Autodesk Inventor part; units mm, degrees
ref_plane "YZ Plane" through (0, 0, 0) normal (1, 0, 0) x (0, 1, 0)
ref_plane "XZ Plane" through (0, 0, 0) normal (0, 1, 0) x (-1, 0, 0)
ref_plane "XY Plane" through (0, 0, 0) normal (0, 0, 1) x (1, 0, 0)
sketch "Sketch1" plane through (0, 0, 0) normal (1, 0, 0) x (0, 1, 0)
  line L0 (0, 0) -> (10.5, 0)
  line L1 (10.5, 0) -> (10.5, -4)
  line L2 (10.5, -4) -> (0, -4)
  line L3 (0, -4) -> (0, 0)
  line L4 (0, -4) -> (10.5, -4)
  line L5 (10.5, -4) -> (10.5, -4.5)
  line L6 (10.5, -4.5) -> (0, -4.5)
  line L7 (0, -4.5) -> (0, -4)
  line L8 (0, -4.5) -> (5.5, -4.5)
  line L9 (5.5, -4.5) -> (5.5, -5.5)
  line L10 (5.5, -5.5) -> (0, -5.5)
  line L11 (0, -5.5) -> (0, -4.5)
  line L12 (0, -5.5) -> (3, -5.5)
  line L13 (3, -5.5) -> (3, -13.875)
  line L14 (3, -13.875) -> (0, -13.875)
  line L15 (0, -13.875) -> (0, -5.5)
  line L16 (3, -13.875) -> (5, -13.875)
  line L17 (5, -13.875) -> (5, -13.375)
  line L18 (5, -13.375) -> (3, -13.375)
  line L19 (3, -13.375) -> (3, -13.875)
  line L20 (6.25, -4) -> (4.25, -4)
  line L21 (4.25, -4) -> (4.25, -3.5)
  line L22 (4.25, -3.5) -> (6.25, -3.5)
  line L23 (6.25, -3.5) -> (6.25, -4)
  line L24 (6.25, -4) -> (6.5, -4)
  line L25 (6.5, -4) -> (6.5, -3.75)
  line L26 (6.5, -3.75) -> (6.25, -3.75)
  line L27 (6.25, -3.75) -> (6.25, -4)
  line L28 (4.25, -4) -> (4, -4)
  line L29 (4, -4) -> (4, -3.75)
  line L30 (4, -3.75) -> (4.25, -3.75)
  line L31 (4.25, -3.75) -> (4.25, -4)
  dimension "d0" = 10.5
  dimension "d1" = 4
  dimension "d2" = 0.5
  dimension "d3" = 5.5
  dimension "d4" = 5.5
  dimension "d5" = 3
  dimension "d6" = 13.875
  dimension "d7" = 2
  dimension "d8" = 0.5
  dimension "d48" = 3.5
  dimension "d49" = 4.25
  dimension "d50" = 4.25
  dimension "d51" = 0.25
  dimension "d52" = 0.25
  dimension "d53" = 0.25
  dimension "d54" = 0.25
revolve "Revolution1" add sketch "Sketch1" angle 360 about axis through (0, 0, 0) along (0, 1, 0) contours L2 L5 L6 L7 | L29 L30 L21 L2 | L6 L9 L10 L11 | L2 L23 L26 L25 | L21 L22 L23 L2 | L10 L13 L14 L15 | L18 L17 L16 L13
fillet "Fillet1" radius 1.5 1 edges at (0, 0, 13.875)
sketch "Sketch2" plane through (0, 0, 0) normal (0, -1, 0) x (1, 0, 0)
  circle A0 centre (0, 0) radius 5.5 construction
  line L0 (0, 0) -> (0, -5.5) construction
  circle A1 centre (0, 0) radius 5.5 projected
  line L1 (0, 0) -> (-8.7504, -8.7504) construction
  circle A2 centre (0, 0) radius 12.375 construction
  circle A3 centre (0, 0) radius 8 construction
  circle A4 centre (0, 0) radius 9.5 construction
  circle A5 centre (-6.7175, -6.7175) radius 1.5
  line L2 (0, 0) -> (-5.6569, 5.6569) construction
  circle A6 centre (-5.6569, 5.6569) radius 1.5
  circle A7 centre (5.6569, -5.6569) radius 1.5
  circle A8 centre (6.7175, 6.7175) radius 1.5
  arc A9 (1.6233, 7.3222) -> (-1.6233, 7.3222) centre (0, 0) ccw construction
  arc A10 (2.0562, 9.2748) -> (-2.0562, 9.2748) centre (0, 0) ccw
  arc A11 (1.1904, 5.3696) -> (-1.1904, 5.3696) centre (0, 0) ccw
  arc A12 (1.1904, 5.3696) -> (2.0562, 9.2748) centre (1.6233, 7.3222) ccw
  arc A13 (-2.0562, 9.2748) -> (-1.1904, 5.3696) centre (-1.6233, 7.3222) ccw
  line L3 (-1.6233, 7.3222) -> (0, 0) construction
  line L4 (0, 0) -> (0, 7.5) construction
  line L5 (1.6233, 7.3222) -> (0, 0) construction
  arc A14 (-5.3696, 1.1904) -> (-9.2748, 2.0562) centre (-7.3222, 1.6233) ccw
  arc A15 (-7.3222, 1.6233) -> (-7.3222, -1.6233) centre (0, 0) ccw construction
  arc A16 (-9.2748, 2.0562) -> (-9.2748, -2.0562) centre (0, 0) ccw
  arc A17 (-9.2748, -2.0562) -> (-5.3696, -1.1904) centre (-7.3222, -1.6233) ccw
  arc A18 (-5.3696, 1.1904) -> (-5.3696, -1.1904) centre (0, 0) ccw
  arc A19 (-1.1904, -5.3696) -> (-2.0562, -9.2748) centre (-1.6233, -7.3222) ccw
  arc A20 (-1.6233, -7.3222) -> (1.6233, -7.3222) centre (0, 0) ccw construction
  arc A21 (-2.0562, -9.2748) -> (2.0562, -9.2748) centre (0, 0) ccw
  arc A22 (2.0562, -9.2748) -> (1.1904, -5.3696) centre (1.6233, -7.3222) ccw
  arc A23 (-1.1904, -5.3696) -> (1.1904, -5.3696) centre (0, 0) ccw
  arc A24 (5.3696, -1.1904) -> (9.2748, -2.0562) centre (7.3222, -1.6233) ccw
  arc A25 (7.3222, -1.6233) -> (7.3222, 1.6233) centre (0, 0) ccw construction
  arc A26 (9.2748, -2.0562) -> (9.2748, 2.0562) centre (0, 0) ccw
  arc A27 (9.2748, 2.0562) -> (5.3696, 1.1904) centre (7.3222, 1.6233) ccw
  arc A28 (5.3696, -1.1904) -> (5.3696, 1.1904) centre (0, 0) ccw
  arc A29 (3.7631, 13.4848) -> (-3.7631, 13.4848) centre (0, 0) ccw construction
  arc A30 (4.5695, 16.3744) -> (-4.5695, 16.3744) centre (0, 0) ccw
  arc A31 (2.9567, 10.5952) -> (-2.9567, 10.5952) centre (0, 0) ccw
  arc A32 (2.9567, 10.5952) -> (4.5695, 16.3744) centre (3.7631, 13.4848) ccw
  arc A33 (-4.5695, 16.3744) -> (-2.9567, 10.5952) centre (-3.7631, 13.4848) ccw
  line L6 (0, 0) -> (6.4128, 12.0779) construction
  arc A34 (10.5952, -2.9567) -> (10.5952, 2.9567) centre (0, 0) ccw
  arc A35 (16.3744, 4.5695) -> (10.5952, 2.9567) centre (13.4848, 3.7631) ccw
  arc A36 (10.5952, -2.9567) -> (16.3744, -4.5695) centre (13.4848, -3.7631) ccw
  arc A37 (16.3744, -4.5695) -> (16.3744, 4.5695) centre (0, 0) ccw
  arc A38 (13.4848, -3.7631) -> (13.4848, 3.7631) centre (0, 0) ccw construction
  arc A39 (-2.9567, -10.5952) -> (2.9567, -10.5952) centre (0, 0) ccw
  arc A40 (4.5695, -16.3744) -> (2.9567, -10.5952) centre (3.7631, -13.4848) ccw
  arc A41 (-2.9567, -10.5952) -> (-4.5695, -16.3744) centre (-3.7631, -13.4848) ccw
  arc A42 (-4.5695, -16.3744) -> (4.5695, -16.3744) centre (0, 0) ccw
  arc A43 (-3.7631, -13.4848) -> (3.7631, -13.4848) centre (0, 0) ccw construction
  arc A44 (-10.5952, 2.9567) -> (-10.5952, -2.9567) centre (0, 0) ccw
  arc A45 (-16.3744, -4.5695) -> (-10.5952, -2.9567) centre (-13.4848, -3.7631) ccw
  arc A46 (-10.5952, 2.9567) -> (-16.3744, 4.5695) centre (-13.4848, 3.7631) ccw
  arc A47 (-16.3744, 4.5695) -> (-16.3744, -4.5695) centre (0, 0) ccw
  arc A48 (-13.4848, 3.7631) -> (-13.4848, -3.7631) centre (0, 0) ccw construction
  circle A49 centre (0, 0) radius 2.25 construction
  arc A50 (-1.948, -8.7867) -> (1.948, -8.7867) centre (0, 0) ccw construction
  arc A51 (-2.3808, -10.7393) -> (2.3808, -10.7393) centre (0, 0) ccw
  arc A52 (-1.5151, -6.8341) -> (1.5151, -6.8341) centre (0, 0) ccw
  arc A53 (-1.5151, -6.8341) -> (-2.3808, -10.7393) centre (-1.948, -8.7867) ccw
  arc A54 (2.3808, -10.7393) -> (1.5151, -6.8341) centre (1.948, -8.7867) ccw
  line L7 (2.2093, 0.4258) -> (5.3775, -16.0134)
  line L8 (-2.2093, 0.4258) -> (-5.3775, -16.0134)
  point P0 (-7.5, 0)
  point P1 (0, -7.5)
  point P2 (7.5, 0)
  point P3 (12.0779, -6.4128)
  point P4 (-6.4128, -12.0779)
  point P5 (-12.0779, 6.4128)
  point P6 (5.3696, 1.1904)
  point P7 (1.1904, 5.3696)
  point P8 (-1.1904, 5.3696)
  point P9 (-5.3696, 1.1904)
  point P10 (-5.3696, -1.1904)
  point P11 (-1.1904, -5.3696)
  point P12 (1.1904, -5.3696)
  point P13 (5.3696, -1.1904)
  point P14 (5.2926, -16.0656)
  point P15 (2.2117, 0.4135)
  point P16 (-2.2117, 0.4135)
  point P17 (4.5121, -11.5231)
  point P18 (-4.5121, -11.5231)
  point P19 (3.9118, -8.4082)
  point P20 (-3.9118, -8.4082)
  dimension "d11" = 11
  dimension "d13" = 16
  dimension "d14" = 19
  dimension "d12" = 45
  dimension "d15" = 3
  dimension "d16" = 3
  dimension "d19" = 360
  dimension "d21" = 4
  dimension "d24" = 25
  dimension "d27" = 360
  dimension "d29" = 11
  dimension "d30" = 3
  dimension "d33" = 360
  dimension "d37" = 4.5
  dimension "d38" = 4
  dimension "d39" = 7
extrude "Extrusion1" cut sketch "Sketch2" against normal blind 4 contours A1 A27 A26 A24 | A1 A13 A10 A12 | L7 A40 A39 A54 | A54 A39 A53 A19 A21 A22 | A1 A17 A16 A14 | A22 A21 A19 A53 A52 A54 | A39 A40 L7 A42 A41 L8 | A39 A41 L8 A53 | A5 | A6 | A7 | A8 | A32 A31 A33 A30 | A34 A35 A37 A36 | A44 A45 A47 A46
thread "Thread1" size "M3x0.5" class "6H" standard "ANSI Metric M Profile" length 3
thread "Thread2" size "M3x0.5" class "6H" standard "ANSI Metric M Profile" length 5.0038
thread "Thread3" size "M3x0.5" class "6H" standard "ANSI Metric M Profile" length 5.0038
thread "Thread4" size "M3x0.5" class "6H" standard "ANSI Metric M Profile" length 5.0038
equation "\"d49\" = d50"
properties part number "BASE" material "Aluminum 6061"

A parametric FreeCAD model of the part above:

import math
import FreeCAD as App
import Part
import Sketcher


def edges_at(feature, points):
    """Names of the edges that pass closest to the given points."""
    edges = feature.Shape.Edges
    near = lambda p: min(range(len(edges)), key=lambda i: edges[i].distToShape(Part.Vertex(*p))[0])
    return sorted({f"Edge{near(p) + 1}" for p in points})


def add_polygon(sketch, points):
    """Adds a closed chain of lines whose ends are joined by coincident constraints."""
    first, n = sketch.GeometryCount, len(points)
    for a, b in zip(points, points[1:] + points[:1]):
        sketch.addGeometry(Part.LineSegment(App.Vector(*a, 0), App.Vector(*b, 0)), False)
    for i in range(n):
        sketch.addConstraint(Sketcher.Constraint("Coincident", first + i, 2, first + (i + 1) % n, 1))

doc = App.newDocument("Part")
body = doc.addObject("PartDesign::Body", "Body")

sketch1 = body.newObject("Sketcher::SketchObject", "Sketch")
sketch1.AttachmentSupport = (doc.getObject("YZ_Plane"), [""])
sketch1.MapMode = "FlatFace"
add_polygon(sketch1, [(4, -4), (0, -4), (0, -13.875), (5, -13.875), (5, -13.375), (3, -13.375), (3, -5.5), (5.5, -5.5), (5.5, -4.5), (10.5, -4.5), (10.5, -4), (6.5, -4), (6.5, -3.75), (6.25, -3.75), (6.25, -3.5), (4.25, -3.5), (4.25, -3.75), (4, -3.75)])
sketch1.addConstraint(Sketcher.Constraint("Horizontal", 0))
sketch1.addConstraint(Sketcher.Constraint("Vertical", 1))
sketch1.addConstraint(Sketcher.Constraint("Horizontal", 2))
sketch1.addConstraint(Sketcher.Constraint("Vertical", 3))
sketch1.addConstraint(Sketcher.Constraint("Horizontal", 4))
sketch1.addConstraint(Sketcher.Constraint("Vertical", 5))
sketch1.addConstraint(Sketcher.Constraint("Horizontal", 6))
sketch1.addConstraint(Sketcher.Constraint("Vertical", 7))
sketch1.addConstraint(Sketcher.Constraint("Horizontal", 8))
sketch1.addConstraint(Sketcher.Constraint("Vertical", 9))
sketch1.addConstraint(Sketcher.Constraint("Horizontal", 10))
sketch1.addConstraint(Sketcher.Constraint("Vertical", 11))
sketch1.addConstraint(Sketcher.Constraint("Horizontal", 12))
sketch1.addConstraint(Sketcher.Constraint("Vertical", 13))
sketch1.addConstraint(Sketcher.Constraint("Horizontal", 14))
sketch1.addConstraint(Sketcher.Constraint("Vertical", 15))
sketch1.addConstraint(Sketcher.Constraint("Horizontal", 16))
sketch1.addConstraint(Sketcher.Constraint("Vertical", 17))
sketch1.addConstraint(Sketcher.Constraint("PointOnObject", 0, 2, -2))
sketch1.addConstraint(Sketcher.Constraint("Horizontal", 0, 2, 9, 2))
sketch1.addConstraint(Sketcher.Constraint("Horizontal", 12, 2, 15, 2))
sketch1.addConstraint(Sketcher.Constraint("Equal", 2, 8))
sketch1.addConstraint(Sketcher.Constraint("Equal", 0, 10))
sketch1.addConstraint(Sketcher.Constraint("Equal", 4, 14))
sketch1.addConstraint(Sketcher.Constraint("Equal", 12, 16))
sketch1.addConstraint(Sketcher.Constraint("Equal", 3, 9))
sketch1.addConstraint(Sketcher.Constraint("Equal", 16, 11))
sketch1.addConstraint(Sketcher.Constraint("Equal", 11, 13))
sketch1.addConstraint(Sketcher.Constraint("DistanceX", 0, 2, 0, 1, 4.0))
sketch1.addConstraint(Sketcher.Constraint("DistanceX", 4, 2, 4, 1, 2.0))
sketch1.addConstraint(Sketcher.Constraint("DistanceY", 3, 1, 3, 2, 0.5))
sketch1.addConstraint(Sketcher.Constraint("DistanceY", 0, 2, -1, 1, 4.0))
sketch1.addConstraint(Sketcher.Constraint("DistanceX", -1, 1, 4, 2, 3.0))
sketch1.addConstraint(Sketcher.Constraint("DistanceY", 6, 2, 13, 2, 2.0))
sketch1.addConstraint(Sketcher.Constraint("DistanceX", 12, 2, 12, 1, 0.25))
sketch1.addConstraint(Sketcher.Constraint("DistanceY", 1, 2, -1, 1, 13.875))
revolution = body.newObject("PartDesign::Revolution", "Revolution")
revolution.Profile = sketch1
revolution.ReferenceAxis = (sketch1, ["H_Axis"])
revolution.Angle = 360
doc.recompute()

fillet = body.newObject("PartDesign::Fillet", "Fillet")
fillet.Base = (revolution, edges_at(revolution, [(0, 0, 13.875)]))
fillet.Radius = 1.5

sketch2 = body.newObject("Sketcher::SketchObject", "Sketch001")
sketch2.AttachmentSupport = (doc.getObject("XZ_Plane"), [""])
sketch2.MapMode = "FlatFace"
sketch2.addGeometry(Part.ArcOfCircle(Part.Circle(App.Vector(0, 0, 0), App.Vector(0, 0, 1), 5.5), math.radians(-12.499881), math.radians(12.499881)), False)
sketch2.addGeometry(Part.ArcOfCircle(Part.Circle(App.Vector(7.3222, -1.6233, 0), App.Vector(0, 0, 1), 2.000012), math.radians(167.499469), math.radians(347.499469)), False)
sketch2.addGeometry(Part.ArcOfCircle(Part.Circle(App.Vector(0, 0, 0), App.Vector(0, 0, 1), 9.499993), math.radians(-12.500155), math.radians(12.500155)), False)
sketch2.addGeometry(Part.ArcOfCircle(Part.Circle(App.Vector(7.3222, 1.6233, 0), App.Vector(0, 0, 1), 2.000012), math.radians(12.500531), math.radians(192.500531)), False)
sketch2.addGeometry(Part.ArcOfCircle(Part.Circle(App.Vector(0, 0, 0), App.Vector(0, 0, 1), 5.5), math.radians(77.500119), math.radians(102.499881)), False)
sketch2.addGeometry(Part.ArcOfCircle(Part.Circle(App.Vector(1.6233, 7.3222, 0), App.Vector(0, 0, 1), 2.000012), math.radians(-102.500531), math.radians(77.499469)), False)
sketch2.addGeometry(Part.ArcOfCircle(Part.Circle(App.Vector(0, 0, 0), App.Vector(0, 0, 1), 9.499993), math.radians(77.499845), math.radians(102.500155)), False)
sketch2.addGeometry(Part.ArcOfCircle(Part.Circle(App.Vector(-1.6233, 7.3222, 0), App.Vector(0, 0, 1), 2.000012), math.radians(102.500531), math.radians(282.500531)), False)
sketch2.addGeometry(Part.ArcOfCircle(Part.Circle(App.Vector(1.948, -8.7867, 0), App.Vector(0, 0, 1), 1.999991), math.radians(10.908733), math.radians(102.500531)), False)
sketch2.addGeometry(Part.ArcOfCircle(Part.Circle(App.Vector(0, 0, 0), App.Vector(0, 0, 1), 7.000032), math.radians(-102.500132), math.radians(-77.499868)), False)
sketch2.addGeometry(Part.ArcOfCircle(Part.Circle(App.Vector(-1.948, -8.7867, 0), App.Vector(0, 0, 1), 2.000012), math.radians(77.499469), math.radians(169.09125)), False)
sketch2.addGeometry(Part.LineSegment(App.Vector(-3.911842, -8.408213, 0), App.Vector(-5.3775, -16.0134, 0)), False)
sketch2.addGeometry(Part.ArcOfCircle(Part.Circle(App.Vector(-3.7631, -13.4848, 0), App.Vector(0, 0, 1), 3.000012), math.radians(-122.556443), math.radians(-105.592811)), False)
sketch2.addGeometry(Part.ArcOfCircle(Part.Circle(App.Vector(0, 0, 0), App.Vector(0, 0, 1), 17.000038), math.radians(-105.592486), math.radians(-74.407514)), False)
sketch2.addGeometry(Part.ArcOfCircle(Part.Circle(App.Vector(3.7631, -13.4848, 0), App.Vector(0, 0, 1), 3.000012), math.radians(-74.407189), math.radians(-57.443557)), False)
sketch2.addGeometry(Part.LineSegment(App.Vector(5.3775, -16.0134, 0), App.Vector(3.911831, -8.408215, 0)), False)
sketch2.addGeometry(Part.ArcOfCircle(Part.Circle(App.Vector(0, 0, 0), App.Vector(0, 0, 1), 5.5), math.radians(167.500119), math.radians(192.499881)), False)
sketch2.addGeometry(Part.ArcOfCircle(Part.Circle(App.Vector(-7.3222, 1.6233, 0), App.Vector(0, 0, 1), 2.000012), math.radians(-12.500531), math.radians(167.499469)), False)
sketch2.addGeometry(Part.ArcOfCircle(Part.Circle(App.Vector(0, 0, 0), App.Vector(0, 0, 1), 9.499993), math.radians(167.499845), math.radians(192.500155)), False)
sketch2.addGeometry(Part.ArcOfCircle(Part.Circle(App.Vector(-7.3222, -1.6233, 0), App.Vector(0, 0, 1), 2.000012), math.radians(-167.499469), math.radians(12.500531)), False)
sketch2.addGeometry(Part.Circle(App.Vector(-6.7175, -6.7175, 0), App.Vector(0, 0, 1), 1.5), False)
sketch2.addGeometry(Part.Circle(App.Vector(-5.6569, 5.6569, 0), App.Vector(0, 0, 1), 1.5), False)
sketch2.addGeometry(Part.Circle(App.Vector(5.6569, -5.6569, 0), App.Vector(0, 0, 1), 1.5), False)
sketch2.addGeometry(Part.Circle(App.Vector(6.7175, 6.7175, 0), App.Vector(0, 0, 1), 1.5), False)
sketch2.addGeometry(Part.ArcOfCircle(Part.Circle(App.Vector(3.7631, 13.4848, 0), App.Vector(0, 0, 1), 3.000012), math.radians(-105.592811), math.radians(74.407189)), False)
sketch2.addGeometry(Part.ArcOfCircle(Part.Circle(App.Vector(0, 0, 0), App.Vector(0, 0, 1), 17.000038), math.radians(74.407514), math.radians(105.592486)), False)
sketch2.addGeometry(Part.ArcOfCircle(Part.Circle(App.Vector(-3.7631, 13.4848, 0), App.Vector(0, 0, 1), 3.000012), math.radians(105.592811), math.radians(285.592811)), False)
sketch2.addGeometry(Part.ArcOfCircle(Part.Circle(App.Vector(0, 0, 0), App.Vector(0, 0, 1), 11.000015), math.radians(74.407691), math.radians(105.592309)), False)
sketch2.addGeometry(Part.ArcOfCircle(Part.Circle(App.Vector(0, 0, 0), App.Vector(0, 0, 1), 11.000015), math.radians(-15.592309), math.radians(15.592309)), False)
sketch2.addGeometry(Part.ArcOfCircle(Part.Circle(App.Vector(13.4848, -3.7631, 0), App.Vector(0, 0, 1), 3.000012), math.radians(164.407189), math.radians(344.407189)), False)
sketch2.addGeometry(Part.ArcOfCircle(Part.Circle(App.Vector(0, 0, 0), App.Vector(0, 0, 1), 17.000038), math.radians(-15.592486), math.radians(15.592486)), False)
sketch2.addGeometry(Part.ArcOfCircle(Part.Circle(App.Vector(13.4848, 3.7631, 0), App.Vector(0, 0, 1), 3.000012), math.radians(15.592811), math.radians(195.592811)), False)
sketch2.addGeometry(Part.ArcOfCircle(Part.Circle(App.Vector(0, 0, 0), App.Vector(0, 0, 1), 11.000015), math.radians(164.407691), math.radians(195.592309)), False)
sketch2.addGeometry(Part.ArcOfCircle(Part.Circle(App.Vector(-13.4848, 3.7631, 0), App.Vector(0, 0, 1), 3.000012), math.radians(-15.592811), math.radians(164.407189)), False)
sketch2.addGeometry(Part.ArcOfCircle(Part.Circle(App.Vector(0, 0, 0), App.Vector(0, 0, 1), 17.000038), math.radians(164.407514), math.radians(195.592486)), False)
sketch2.addGeometry(Part.ArcOfCircle(Part.Circle(App.Vector(-13.4848, -3.7631, 0), App.Vector(0, 0, 1), 3.000012), math.radians(-164.407189), math.radians(15.592811)), False)
sketch2.addConstraint(Sketcher.Constraint("Tangent", 0, 1, 1, 1))
sketch2.addConstraint(Sketcher.Constraint("Tangent", 1, 2, 2, 1))
sketch2.addConstraint(Sketcher.Constraint("Tangent", 2, 2, 3, 1))
sketch2.addConstraint(Sketcher.Constraint("Tangent", 3, 2, 0, 2))
sketch2.addConstraint(Sketcher.Constraint("Tangent", 4, 1, 5, 1))
sketch2.addConstraint(Sketcher.Constraint("Tangent", 5, 2, 6, 1))
sketch2.addConstraint(Sketcher.Constraint("Tangent", 6, 2, 7, 1))
sketch2.addConstraint(Sketcher.Constraint("Tangent", 7, 2, 4, 2))
sketch2.addConstraint(Sketcher.Constraint("Tangent", 8, 2, 9, 2))
sketch2.addConstraint(Sketcher.Constraint("Tangent", 9, 1, 10, 1))
sketch2.addConstraint(Sketcher.Constraint("Tangent", 10, 2, 11, 1))
sketch2.addConstraint(Sketcher.Constraint("Coincident", 11, 2, 12, 1))
sketch2.addConstraint(Sketcher.Constraint("Tangent", 12, 2, 13, 1))
sketch2.addConstraint(Sketcher.Constraint("Tangent", 13, 2, 14, 1))
sketch2.addConstraint(Sketcher.Constraint("Coincident", 14, 2, 15, 1))
sketch2.addConstraint(Sketcher.Constraint("Tangent", 15, 2, 8, 1))
sketch2.addConstraint(Sketcher.Constraint("Tangent", 16, 1, 17, 1))
sketch2.addConstraint(Sketcher.Constraint("Tangent", 17, 2, 18, 1))
sketch2.addConstraint(Sketcher.Constraint("Tangent", 18, 2, 19, 1))
sketch2.addConstraint(Sketcher.Constraint("Tangent", 19, 2, 16, 2))
sketch2.addConstraint(Sketcher.Constraint("Tangent", 24, 2, 25, 1))
sketch2.addConstraint(Sketcher.Constraint("Tangent", 25, 2, 26, 1))
sketch2.addConstraint(Sketcher.Constraint("Tangent", 26, 2, 27, 2))
sketch2.addConstraint(Sketcher.Constraint("Tangent", 27, 1, 24, 1))
sketch2.addConstraint(Sketcher.Constraint("Tangent", 28, 1, 29, 1))
sketch2.addConstraint(Sketcher.Constraint("Tangent", 29, 2, 30, 1))
sketch2.addConstraint(Sketcher.Constraint("Tangent", 30, 2, 31, 1))
sketch2.addConstraint(Sketcher.Constraint("Tangent", 31, 2, 28, 2))
sketch2.addConstraint(Sketcher.Constraint("Tangent", 32, 1, 33, 1))
sketch2.addConstraint(Sketcher.Constraint("Tangent", 33, 2, 34, 1))
sketch2.addConstraint(Sketcher.Constraint("Tangent", 34, 2, 35, 1))
sketch2.addConstraint(Sketcher.Constraint("Tangent", 35, 2, 32, 2))
sketch2.addConstraint(Sketcher.Constraint("Coincident", 0, 3, -1, 1))
sketch2.addConstraint(Sketcher.Constraint("Coincident", 2, 3, -1, 1))
sketch2.addConstraint(Sketcher.Constraint("Coincident", 4, 3, -1, 1))
sketch2.addConstraint(Sketcher.Constraint("Coincident", 6, 3, -1, 1))
sketch2.addConstraint(Sketcher.Constraint("Coincident", 9, 3, -1, 1))
sketch2.addConstraint(Sketcher.Constraint("Coincident", 13, 3, -1, 1))
sketch2.addConstraint(Sketcher.Constraint("Coincident", 16, 3, -1, 1))
sketch2.addConstraint(Sketcher.Constraint("Coincident", 18, 3, -1, 1))
sketch2.addConstraint(Sketcher.Constraint("Coincident", 25, 3, -1, 1))
sketch2.addConstraint(Sketcher.Constraint("Coincident", 27, 3, -1, 1))
sketch2.addConstraint(Sketcher.Constraint("Coincident", 28, 3, -1, 1))
sketch2.addConstraint(Sketcher.Constraint("Coincident", 30, 3, -1, 1))
sketch2.addConstraint(Sketcher.Constraint("Coincident", 32, 3, -1, 1))
sketch2.addConstraint(Sketcher.Constraint("Coincident", 34, 3, -1, 1))
sketch2.addConstraint(Sketcher.Constraint("Equal", 0, 4))
sketch2.addConstraint(Sketcher.Constraint("Equal", 3, 5))
sketch2.addConstraint(Sketcher.Constraint("Equal", 7, 8))
sketch2.addConstraint(Sketcher.Constraint("Equal", 8, 10))
sketch2.addConstraint(Sketcher.Constraint("Equal", 12, 14))
sketch2.addConstraint(Sketcher.Constraint("Equal", 4, 16))
sketch2.addConstraint(Sketcher.Constraint("Equal", 10, 17))
sketch2.addConstraint(Sketcher.Constraint("Equal", 20, 21))
sketch2.addConstraint(Sketcher.Constraint("Equal", 21, 22))
sketch2.addConstraint(Sketcher.Constraint("Equal", 22, 23))
sketch2.addConstraint(Sketcher.Constraint("Equal", 14, 24))
sketch2.addConstraint(Sketcher.Constraint("Equal", 13, 25))
sketch2.addConstraint(Sketcher.Constraint("Equal", 27, 28))
sketch2.addConstraint(Sketcher.Constraint("Equal", 26, 29))
sketch2.addConstraint(Sketcher.Constraint("Equal", 28, 32))
sketch2.addConstraint(Sketcher.Constraint("Equal", 31, 33))
sketch2.addConstraint(Sketcher.Constraint("Symmetric", 21, 3, 22, 3, -1, 1))
sketch2.addConstraint(Sketcher.Constraint("Symmetric", 20, 3, 23, 3, -1, 1))
sketch2.addConstraint(Sketcher.Constraint("Symmetric", 11, 2, 14, 2, -2))
sketch2.addConstraint(Sketcher.Constraint("Horizontal", 5, 3, 7, 3))
sketch2.addConstraint(Sketcher.Constraint("Horizontal", 8, 3, 10, 3))
sketch2.addConstraint(Sketcher.Constraint("Horizontal", 3, 3, 17, 3))
sketch2.addConstraint(Sketcher.Constraint("Horizontal", 1, 3, 19, 3))
sketch2.addConstraint(Sketcher.Constraint("Horizontal", 24, 3, 26, 3))
sketch2.addConstraint(Sketcher.Constraint("Horizontal", 31, 3, 33, 3))
sketch2.addConstraint(Sketcher.Constraint("Horizontal", 29, 3, 35, 3))
sketch2.addConstraint(Sketcher.Constraint("Vertical", 1, 3, 3, 3))
sketch2.addConstraint(Sketcher.Constraint("Vertical", 14, 3, 24, 3))
sketch2.addConstraint(Sketcher.Constraint("Vertical", 29, 3, 31, 3))
sketch2.addConstraint(Sketcher.Constraint("Diameter", 20, 3.0))
sketch2.addConstraint(Sketcher.Constraint("Radius", 1, 2.0))
sketch2.addConstraint(Sketcher.Constraint("Radius", 9, 7.0))
sketch2.addConstraint(Sketcher.Constraint("Radius", 12, 3.0))
sketch2.addConstraint(Sketcher.Constraint("Radius", 27, 11.0))
sketch2.addConstraint(Sketcher.Constraint("Radius", 0, 5.5))
sketch2.addConstraint(Sketcher.Constraint("DistanceX", -1, 1, 8, 3, 1.948))
sketch2.addConstraint(Sketcher.Constraint("DistanceX", 12, 3, -1, 1, 3.763))
sketch2.addConstraint(Sketcher.Constraint("DistanceX", 21, 3, -1, 1, 5.657))
sketch2.addConstraint(Sketcher.Constraint("DistanceY", -1, 1, 21, 3, 5.657))
sketch2.addConstraint(Sketcher.Constraint("DistanceY", 29, 3, -1, 1, 3.763))
sketch2.addConstraint(Sketcher.Constraint("Distance", 11, 7.7451))
sketch2.addConstraint(Sketcher.Constraint("DistanceX", -1, 1, 1, 3, 7.3222))
sketch2.addConstraint(Sketcher.Constraint("DistanceX", -1, 1, 5, 3, 1.6233))
sketch2.addConstraint(Sketcher.Constraint("DistanceX", 20, 3, -1, 1, 6.7175))
sketch2.addConstraint(Sketcher.Constraint("DistanceY", 20, 3, -1, 1, 6.7175))
pocket1 = body.newObject("PartDesign::Pocket", "Pocket")
pocket1.Profile = sketch2
pocket1.Length = 4

doc.recompute()
